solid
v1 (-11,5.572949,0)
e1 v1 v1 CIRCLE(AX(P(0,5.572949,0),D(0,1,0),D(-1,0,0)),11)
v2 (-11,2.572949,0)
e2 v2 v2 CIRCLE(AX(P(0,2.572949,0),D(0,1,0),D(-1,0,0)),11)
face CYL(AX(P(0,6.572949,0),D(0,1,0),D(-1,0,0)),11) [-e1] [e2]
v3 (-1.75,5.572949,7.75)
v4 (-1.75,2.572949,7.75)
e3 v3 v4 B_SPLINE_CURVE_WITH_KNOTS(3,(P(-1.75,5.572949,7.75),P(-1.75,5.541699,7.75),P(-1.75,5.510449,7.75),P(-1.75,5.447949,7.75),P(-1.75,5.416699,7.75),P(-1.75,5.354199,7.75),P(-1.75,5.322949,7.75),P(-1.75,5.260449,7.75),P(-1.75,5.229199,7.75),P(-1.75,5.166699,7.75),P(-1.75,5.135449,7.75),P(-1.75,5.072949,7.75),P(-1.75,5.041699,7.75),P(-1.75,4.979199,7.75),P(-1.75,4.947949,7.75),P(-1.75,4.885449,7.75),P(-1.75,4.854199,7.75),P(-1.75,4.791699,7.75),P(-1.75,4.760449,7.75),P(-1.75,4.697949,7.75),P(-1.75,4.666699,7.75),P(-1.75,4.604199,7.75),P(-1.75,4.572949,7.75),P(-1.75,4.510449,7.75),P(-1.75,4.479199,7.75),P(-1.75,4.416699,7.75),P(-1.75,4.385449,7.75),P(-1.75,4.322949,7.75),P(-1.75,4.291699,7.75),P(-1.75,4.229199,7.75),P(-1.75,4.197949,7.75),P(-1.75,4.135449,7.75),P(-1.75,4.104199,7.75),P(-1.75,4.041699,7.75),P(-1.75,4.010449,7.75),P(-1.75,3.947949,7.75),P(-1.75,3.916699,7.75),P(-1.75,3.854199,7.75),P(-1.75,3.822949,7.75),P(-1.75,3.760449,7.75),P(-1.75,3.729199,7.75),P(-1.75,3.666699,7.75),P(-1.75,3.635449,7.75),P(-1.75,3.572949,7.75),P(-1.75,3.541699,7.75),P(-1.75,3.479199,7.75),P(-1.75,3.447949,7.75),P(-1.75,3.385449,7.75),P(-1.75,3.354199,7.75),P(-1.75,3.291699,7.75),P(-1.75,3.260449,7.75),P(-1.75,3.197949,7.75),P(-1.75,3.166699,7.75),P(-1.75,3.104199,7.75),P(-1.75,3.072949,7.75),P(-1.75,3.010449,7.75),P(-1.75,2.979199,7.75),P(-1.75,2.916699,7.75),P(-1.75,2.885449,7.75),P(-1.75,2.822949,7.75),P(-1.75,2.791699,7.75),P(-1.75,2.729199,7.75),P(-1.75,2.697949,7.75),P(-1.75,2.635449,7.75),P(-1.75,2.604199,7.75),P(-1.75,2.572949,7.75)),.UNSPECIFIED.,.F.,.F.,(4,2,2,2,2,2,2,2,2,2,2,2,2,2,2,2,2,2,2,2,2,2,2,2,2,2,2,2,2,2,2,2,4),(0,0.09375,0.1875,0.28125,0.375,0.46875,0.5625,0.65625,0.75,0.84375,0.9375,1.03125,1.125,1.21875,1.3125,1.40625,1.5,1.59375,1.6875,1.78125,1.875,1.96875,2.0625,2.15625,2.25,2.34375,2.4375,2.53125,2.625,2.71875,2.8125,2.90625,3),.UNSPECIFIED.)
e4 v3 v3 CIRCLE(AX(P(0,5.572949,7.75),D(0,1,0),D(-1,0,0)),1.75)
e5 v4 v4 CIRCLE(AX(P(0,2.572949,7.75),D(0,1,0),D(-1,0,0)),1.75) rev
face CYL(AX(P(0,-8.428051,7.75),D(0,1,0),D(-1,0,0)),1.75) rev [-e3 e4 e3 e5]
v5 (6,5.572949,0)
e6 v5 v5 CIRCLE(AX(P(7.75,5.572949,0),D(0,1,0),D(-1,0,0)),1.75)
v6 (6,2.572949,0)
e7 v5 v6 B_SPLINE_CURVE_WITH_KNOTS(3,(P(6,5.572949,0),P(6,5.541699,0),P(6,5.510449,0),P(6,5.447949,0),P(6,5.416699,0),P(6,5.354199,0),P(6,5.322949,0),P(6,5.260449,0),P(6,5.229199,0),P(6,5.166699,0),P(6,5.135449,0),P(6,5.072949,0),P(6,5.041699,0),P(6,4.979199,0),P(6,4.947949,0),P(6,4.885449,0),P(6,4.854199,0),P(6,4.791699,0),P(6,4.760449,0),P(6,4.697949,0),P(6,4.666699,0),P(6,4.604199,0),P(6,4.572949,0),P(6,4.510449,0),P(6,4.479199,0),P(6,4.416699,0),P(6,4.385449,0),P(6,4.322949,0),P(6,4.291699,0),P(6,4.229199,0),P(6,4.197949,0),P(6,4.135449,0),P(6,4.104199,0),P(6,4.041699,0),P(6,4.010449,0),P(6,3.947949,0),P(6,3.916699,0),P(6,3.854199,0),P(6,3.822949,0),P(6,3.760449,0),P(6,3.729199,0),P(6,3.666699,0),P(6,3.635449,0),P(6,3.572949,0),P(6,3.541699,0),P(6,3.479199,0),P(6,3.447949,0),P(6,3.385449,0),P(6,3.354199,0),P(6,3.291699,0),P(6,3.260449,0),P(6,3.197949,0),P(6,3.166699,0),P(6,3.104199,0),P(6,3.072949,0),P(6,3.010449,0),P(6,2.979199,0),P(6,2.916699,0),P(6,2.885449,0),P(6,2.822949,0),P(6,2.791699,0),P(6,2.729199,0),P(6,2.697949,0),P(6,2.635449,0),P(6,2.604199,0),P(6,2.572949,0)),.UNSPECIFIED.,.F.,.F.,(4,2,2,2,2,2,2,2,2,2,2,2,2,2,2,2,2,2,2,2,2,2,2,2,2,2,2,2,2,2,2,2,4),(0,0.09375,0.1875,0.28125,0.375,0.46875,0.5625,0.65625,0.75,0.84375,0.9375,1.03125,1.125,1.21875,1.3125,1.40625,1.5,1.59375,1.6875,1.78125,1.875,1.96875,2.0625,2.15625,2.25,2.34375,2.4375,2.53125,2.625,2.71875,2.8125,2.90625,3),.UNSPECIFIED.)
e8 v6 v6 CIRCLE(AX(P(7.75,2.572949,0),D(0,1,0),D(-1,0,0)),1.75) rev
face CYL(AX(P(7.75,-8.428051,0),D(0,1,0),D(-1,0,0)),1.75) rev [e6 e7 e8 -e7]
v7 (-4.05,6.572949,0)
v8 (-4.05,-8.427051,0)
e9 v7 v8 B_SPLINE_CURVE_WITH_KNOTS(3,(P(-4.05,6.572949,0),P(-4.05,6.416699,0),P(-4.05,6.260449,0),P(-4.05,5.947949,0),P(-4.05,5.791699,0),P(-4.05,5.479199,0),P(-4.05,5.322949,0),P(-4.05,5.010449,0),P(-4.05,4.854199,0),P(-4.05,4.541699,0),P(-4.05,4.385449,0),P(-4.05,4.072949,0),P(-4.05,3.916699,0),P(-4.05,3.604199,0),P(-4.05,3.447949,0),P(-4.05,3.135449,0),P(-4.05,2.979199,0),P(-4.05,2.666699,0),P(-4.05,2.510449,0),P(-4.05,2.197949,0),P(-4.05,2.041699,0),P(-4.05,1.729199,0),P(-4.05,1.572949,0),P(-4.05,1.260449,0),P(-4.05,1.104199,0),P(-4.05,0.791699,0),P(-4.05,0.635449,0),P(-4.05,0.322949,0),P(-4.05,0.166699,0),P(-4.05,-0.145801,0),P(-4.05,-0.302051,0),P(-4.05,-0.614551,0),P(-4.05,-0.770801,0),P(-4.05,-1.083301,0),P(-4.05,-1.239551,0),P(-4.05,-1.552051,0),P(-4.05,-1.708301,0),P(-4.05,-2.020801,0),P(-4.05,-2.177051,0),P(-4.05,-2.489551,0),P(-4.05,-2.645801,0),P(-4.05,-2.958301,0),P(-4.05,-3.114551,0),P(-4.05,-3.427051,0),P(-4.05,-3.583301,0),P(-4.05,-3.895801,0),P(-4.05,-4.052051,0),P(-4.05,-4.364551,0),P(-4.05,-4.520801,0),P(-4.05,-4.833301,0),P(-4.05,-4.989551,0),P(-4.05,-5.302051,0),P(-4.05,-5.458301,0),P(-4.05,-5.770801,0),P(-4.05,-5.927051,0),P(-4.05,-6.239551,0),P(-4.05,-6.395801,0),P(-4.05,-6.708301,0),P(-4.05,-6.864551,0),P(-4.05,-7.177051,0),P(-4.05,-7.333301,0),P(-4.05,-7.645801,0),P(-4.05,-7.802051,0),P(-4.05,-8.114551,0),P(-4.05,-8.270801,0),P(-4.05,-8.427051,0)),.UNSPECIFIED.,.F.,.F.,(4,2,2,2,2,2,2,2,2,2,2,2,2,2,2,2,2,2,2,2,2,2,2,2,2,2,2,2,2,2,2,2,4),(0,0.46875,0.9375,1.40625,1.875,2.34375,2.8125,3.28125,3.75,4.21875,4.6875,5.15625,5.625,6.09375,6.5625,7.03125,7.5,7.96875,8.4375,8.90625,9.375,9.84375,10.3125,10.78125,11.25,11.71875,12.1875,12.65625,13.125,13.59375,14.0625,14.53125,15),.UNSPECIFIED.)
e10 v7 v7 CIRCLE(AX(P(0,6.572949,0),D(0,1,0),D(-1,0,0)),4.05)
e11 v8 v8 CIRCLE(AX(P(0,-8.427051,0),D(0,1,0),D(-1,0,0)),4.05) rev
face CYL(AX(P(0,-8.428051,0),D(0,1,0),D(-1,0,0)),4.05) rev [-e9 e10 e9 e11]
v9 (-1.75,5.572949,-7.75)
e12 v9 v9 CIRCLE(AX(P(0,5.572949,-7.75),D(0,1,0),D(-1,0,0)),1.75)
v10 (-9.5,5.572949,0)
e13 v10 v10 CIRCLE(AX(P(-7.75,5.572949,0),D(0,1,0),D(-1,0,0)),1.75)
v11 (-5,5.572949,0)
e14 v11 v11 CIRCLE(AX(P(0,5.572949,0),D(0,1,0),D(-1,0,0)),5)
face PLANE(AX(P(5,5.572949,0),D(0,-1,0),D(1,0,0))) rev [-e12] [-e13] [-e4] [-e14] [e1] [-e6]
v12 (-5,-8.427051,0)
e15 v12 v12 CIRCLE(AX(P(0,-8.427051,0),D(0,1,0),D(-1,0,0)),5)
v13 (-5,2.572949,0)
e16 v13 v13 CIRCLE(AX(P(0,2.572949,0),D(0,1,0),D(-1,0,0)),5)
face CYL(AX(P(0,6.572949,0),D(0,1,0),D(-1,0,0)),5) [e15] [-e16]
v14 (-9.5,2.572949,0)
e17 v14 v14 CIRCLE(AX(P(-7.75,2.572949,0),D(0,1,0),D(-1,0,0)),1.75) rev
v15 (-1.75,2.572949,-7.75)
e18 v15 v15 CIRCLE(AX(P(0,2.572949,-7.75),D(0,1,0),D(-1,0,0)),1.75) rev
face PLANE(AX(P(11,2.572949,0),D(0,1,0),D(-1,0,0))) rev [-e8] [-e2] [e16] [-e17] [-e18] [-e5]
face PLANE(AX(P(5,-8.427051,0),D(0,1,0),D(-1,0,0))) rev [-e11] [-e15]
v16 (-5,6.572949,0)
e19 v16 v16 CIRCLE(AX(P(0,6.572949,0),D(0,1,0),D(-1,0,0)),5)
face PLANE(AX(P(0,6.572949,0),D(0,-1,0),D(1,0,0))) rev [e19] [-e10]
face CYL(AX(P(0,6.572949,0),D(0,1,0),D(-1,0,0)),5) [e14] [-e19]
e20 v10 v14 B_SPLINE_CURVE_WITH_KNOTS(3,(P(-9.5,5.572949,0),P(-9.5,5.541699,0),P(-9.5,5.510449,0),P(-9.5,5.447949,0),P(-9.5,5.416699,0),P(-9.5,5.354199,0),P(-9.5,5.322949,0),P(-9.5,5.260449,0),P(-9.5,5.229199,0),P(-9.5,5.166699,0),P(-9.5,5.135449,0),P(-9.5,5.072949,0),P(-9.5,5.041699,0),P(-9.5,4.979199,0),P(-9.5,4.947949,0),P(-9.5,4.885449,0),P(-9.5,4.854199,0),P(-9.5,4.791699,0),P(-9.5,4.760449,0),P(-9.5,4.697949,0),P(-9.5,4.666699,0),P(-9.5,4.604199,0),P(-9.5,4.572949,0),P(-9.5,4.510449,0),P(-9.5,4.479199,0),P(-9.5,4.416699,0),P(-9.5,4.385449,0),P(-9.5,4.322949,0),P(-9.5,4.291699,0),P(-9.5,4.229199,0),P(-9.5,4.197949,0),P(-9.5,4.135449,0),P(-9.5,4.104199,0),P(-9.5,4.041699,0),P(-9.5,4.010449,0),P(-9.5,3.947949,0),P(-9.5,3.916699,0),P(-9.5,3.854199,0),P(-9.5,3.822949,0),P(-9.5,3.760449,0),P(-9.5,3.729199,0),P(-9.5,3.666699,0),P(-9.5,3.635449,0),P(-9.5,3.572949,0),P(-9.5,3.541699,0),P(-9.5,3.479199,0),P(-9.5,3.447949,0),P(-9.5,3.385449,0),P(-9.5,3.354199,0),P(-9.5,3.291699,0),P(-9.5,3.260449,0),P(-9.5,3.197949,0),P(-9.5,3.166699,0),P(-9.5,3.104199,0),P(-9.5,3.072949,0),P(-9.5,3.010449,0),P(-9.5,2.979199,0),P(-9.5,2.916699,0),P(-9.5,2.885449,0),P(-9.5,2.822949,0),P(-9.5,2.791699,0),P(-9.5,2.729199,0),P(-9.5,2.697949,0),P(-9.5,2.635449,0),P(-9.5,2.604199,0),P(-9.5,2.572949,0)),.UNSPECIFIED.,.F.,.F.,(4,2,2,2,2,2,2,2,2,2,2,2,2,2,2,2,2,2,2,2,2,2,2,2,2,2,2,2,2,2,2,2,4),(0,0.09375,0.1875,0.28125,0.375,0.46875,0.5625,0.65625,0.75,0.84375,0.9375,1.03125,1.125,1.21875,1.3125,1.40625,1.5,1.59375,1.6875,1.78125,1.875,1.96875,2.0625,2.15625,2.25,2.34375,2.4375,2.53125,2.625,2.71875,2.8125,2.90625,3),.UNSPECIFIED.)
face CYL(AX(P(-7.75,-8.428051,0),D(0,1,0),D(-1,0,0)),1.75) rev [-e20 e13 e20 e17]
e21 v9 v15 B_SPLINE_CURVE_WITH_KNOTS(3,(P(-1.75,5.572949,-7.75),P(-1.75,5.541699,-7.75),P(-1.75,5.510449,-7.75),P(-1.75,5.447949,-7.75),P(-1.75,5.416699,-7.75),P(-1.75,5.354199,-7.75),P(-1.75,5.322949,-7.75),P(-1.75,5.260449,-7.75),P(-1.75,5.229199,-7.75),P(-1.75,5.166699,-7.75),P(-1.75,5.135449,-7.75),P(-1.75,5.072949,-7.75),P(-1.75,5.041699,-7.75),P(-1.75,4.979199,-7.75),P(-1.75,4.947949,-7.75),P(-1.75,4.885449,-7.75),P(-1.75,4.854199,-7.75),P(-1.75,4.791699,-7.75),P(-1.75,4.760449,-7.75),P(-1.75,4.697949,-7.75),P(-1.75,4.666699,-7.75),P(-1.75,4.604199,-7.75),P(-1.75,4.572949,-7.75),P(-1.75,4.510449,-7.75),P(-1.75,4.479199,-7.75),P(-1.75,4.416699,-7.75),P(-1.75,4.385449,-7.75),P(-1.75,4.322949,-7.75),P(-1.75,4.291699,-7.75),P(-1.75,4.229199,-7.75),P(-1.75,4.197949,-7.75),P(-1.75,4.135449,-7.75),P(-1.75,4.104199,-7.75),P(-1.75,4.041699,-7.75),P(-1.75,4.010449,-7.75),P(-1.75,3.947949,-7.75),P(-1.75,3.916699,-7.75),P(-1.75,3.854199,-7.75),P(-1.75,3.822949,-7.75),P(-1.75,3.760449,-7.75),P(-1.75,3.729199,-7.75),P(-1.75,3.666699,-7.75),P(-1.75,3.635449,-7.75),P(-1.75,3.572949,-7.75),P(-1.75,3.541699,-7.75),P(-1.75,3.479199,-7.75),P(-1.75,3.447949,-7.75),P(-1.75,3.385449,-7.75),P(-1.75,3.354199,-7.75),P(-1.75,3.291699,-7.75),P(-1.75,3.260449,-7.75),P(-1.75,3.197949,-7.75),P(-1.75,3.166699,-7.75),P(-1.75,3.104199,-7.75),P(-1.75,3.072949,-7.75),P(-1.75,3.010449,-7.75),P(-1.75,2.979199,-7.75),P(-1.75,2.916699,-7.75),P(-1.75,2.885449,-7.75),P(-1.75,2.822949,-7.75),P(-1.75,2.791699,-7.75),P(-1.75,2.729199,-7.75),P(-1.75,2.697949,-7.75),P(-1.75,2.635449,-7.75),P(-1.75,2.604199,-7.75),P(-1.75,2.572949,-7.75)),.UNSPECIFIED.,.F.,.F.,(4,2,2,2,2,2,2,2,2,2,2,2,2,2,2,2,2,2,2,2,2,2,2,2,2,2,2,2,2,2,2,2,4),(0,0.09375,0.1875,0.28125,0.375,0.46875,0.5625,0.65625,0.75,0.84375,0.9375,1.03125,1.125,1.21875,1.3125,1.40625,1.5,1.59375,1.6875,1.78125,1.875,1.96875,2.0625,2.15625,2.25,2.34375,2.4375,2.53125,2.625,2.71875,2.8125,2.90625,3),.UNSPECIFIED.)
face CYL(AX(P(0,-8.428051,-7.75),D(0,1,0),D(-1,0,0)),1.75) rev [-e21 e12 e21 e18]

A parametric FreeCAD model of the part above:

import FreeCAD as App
import Part
import Sketcher

V = App.Vector
Q = App.Units.Quantity

doc = App.newDocument("Part")
body = doc.addObject("PartDesign::Body", "Body")

# Sketch on XY plane
sketch1 = doc.addObject("Sketcher::SketchObject", "Sketch")
body.addObject(sketch1)
sketch1.AttachmentSupport = (doc.XY_Plane, [""])
sketch1.MapMode = "FlatFace"
sketch1.addGeometry([
    Part.LineSegment(V(5, 6.6, 0), V(0, 6.6, 0)),  # 0
    Part.LineSegment(V(0, 6.6, 0), V(0, -8.4, 0)),  # 1
    Part.LineSegment(V(0, -8.4, 0), V(5, -8.4, 0)),  # 2
    Part.LineSegment(V(5, -8.4, 0), V(5, 2.6, 0)),  # 3
    Part.LineSegment(V(5, 2.6, 0), V(11, 2.6, 0)),  # 4
    Part.LineSegment(V(11, 2.6, 0), V(11, 5.6, 0)),  # 5
    Part.LineSegment(V(11, 5.6, 0), V(5, 5.6, 0)),  # 6
    Part.LineSegment(V(5, 5.6, 0), V(5, 6.6, 0)),  # 7
], False)
sketch1.addConstraint([
    Sketcher.Constraint("Coincident", 0, 2, 1, 1),
    Sketcher.Constraint("Coincident", 1, 2, 2, 1),
    Sketcher.Constraint("Coincident", 2, 2, 3, 1),
    Sketcher.Constraint("Coincident", 3, 2, 4, 1),
    Sketcher.Constraint("Coincident", 4, 2, 5, 1),
    Sketcher.Constraint("Coincident", 5, 2, 6, 1),
    Sketcher.Constraint("Coincident", 6, 2, 7, 1),
    Sketcher.Constraint("Coincident", 7, 2, 0, 1),
    Sketcher.Constraint("Horizontal", 0),
    Sketcher.Constraint("Vertical", 1),
    Sketcher.Constraint("Horizontal", 2),
    Sketcher.Constraint("Vertical", 3),
    Sketcher.Constraint("Horizontal", 4),
    Sketcher.Constraint("Vertical", 5),
    Sketcher.Constraint("Horizontal", 6),
    Sketcher.Constraint("Vertical", 7),
    Sketcher.Constraint("PointOnObject", 0, 2, -2),
    Sketcher.Constraint("Vertical", 3, 2, 6, 2),
    Sketcher.Constraint("DistanceX", 0, 2, 0, 1, Q("5 mm")),
    Sketcher.Constraint("DistanceX", 4, 1, 4, 2, Q("6 mm")),
    Sketcher.Constraint("DistanceY", 1, 2, 1, 1, Q("15 mm")),
    Sketcher.Constraint("DistanceY", 3, 1, 3, 2, Q("11 mm")),
    Sketcher.Constraint("DistanceY", 5, 1, 5, 2, Q("3 mm")),
    Sketcher.Constraint("DistanceY", -1, 1, 0, 2, Q("6.572949 mm")),
])
revolution = doc.addObject("PartDesign::Revolution", "Revolution")
body.addObject(revolution)
revolution.Profile = sketch1
revolution.ReferenceAxis = (sketch1, ["V_Axis"])
revolution.Angle = 360

# Sketch on XZ plane
sketch2 = doc.addObject("Sketcher::SketchObject", "Sketch001")
body.addObject(sketch2)
sketch2.AttachmentSupport = (doc.XZ_Plane, [""])
sketch2.MapMode = "FlatFace"
sketch2.AttachmentOffset = App.Placement(V(0, 0, -6.572949), App.Rotation())
sketch2.addGeometry(Part.Circle(V(0, 0, 0), V(0, 0, 1), 4), False)
sketch2.addConstraint([
    Sketcher.Constraint("Coincident", 0, 3, -1, 1),
    Sketcher.Constraint("Diameter", 0, Q("8.1 mm")),
])
pocket1 = doc.addObject("PartDesign::Pocket", "Pocket")
body.addObject(pocket1)
pocket1.Profile = sketch2
pocket1.Type = "UpToFirst"
pocket1.Reversed = True

# Sketch on XZ plane
sketch3 = doc.addObject("Sketcher::SketchObject", "Sketch002")
body.addObject(sketch3)
sketch3.AttachmentSupport = (doc.XZ_Plane, [""])
sketch3.MapMode = "FlatFace"
sketch3.AttachmentOffset = App.Placement(V(0, 0, -5.572949), App.Rotation())
sketch3.addGeometry(Part.Circle(V(0, -7.8, 0), V(0, 0, 1), 1.8), False)
sketch3.addConstraint([
    Sketcher.Constraint("PointOnObject", 0, 3, -2),
    Sketcher.Constraint("Diameter", 0, Q("3.5 mm")),
    Sketcher.Constraint("DistanceY", 0, 3, -1, 1, Q("7.75 mm")),
])
pocket2 = doc.addObject("PartDesign::Pocket", "Pocket001")
body.addObject(pocket2)
pocket2.Profile = sketch3
pocket2.Type = "UpToFirst"
pocket2.Reversed = True

# Sketch on XZ plane
sketch4 = doc.addObject("Sketcher::SketchObject", "Sketch003")
body.addObject(sketch4)
sketch4.AttachmentSupport = (doc.XZ_Plane, [""])
sketch4.MapMode = "FlatFace"
sketch4.AttachmentOffset = App.Placement(V(0, 0, -5.572949), App.Rotation())
sketch4.addGeometry(Part.Circle(V(7.8, 0, 0), V(0, 0, 1), 1.8), False)
sketch4.addConstraint([
    Sketcher.Constraint("PointOnObject", 0, 3, -1),
    Sketcher.Constraint("Diameter", 0, Q("3.5 mm")),
    Sketcher.Constraint("DistanceX", -1, 1, 0, 3, Q("7.75 mm")),
])
pocket3 = doc.addObject("PartDesign::Pocket", "Pocket002")
body.addObject(pocket3)
pocket3.Profile = sketch4
pocket3.Type = "UpToFirst"
pocket3.Reversed = True

# Sketch on XZ plane
sketch5 = doc.addObject("Sketcher::SketchObject", "Sketch004")
body.addObject(sketch5)
sketch5.AttachmentSupport = (doc.XZ_Plane, [""])
sketch5.MapMode = "FlatFace"
sketch5.AttachmentOffset = App.Placement(V(0, 0, -5.572949), App.Rotation())
sketch5.addGeometry(Part.Circle(V(0, 7.8, 0), V(0, 0, 1), 1.8), False)
sketch5.addConstraint([
    Sketcher.Constraint("PointOnObject", 0, 3, -2),
    Sketcher.Constraint("Diameter", 0, Q("3.5 mm")),
    Sketcher.Constraint("DistanceY", -1, 1, 0, 3, Q("7.75 mm")),
])
pocket4 = doc.addObject("PartDesign::Pocket", "Pocket003")
body.addObject(pocket4)
pocket4.Profile = sketch5
pocket4.Type = "UpToFirst"
pocket4.Reversed = True

# Sketch on XZ plane
sketch6 = doc.addObject("Sketcher::SketchObject", "Sketch005")
body.addObject(sketch6)
sketch6.AttachmentSupport = (doc.XZ_Plane, [""])
sketch6.MapMode = "FlatFace"
sketch6.AttachmentOffset = App.Placement(V(0, 0, -5.572949), App.Rotation())
sketch6.addGeometry(Part.Circle(V(-7.8, 0, 0), V(0, 0, 1), 1.8), False)
sketch6.addConstraint([
    Sketcher.Constraint("PointOnObject", 0, 3, -1),
    Sketcher.Constraint("Diameter", 0, Q("3.5 mm")),
    Sketcher.Constraint("DistanceX", 0, 3, -1, 1, Q("7.75 mm")),
])
pocket5 = doc.addObject("PartDesign::Pocket", "Pocket004")
body.addObject(pocket5)
pocket5.Profile = sketch6
pocket5.Type = "UpToFirst"
pocket5.Reversed = True

doc.recompute()
